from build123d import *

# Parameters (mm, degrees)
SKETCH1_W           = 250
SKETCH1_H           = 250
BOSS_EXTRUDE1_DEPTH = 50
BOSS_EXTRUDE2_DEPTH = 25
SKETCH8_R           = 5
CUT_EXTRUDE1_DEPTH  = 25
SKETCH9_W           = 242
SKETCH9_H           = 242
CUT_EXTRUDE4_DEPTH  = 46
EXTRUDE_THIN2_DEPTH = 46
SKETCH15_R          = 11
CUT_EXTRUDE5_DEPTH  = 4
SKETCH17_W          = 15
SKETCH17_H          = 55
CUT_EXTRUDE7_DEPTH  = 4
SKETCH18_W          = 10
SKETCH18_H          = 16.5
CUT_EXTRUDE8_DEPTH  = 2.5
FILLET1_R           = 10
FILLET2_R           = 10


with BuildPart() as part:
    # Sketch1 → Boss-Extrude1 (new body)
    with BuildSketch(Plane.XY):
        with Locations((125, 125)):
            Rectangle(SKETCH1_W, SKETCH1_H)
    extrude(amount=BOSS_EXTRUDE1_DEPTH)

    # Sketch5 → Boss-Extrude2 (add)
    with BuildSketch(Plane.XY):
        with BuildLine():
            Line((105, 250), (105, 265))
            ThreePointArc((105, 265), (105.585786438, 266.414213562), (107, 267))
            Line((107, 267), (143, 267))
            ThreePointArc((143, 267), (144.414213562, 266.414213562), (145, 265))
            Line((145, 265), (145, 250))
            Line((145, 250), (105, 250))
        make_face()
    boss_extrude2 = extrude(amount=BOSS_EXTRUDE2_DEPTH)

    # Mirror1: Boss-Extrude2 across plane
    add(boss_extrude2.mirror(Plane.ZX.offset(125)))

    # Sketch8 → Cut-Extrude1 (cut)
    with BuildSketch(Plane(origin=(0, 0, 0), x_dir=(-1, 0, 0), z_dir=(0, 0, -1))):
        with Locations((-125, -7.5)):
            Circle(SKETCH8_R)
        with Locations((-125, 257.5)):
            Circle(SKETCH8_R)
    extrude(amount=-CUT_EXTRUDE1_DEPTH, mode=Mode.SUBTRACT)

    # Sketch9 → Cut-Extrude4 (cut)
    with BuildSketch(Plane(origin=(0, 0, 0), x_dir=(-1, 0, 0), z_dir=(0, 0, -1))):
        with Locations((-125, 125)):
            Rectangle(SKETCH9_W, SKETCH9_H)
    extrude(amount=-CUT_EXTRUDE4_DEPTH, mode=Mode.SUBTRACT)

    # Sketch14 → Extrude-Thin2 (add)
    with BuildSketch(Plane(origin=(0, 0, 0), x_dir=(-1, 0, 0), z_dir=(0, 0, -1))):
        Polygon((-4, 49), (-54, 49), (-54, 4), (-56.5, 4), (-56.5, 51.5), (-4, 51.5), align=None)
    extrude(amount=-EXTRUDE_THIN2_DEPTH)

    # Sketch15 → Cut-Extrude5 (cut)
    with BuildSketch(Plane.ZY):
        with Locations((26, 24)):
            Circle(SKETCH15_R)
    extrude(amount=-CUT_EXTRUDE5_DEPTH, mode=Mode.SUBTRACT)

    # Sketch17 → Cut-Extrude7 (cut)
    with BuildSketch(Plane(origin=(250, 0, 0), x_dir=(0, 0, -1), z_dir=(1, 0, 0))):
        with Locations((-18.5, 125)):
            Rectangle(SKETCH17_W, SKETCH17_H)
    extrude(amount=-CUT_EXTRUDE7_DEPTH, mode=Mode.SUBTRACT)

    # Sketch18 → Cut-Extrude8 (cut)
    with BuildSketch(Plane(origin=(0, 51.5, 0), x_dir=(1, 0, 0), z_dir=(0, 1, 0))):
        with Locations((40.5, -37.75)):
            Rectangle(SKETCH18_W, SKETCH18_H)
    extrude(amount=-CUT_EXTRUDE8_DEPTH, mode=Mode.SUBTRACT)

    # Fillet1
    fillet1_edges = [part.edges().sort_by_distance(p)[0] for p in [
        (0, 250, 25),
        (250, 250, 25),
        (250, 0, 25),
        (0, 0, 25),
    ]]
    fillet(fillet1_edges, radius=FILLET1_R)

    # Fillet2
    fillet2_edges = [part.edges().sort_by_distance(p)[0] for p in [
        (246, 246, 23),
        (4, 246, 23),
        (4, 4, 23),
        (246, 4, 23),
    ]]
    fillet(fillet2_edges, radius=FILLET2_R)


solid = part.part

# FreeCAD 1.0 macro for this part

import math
import FreeCAD as App
import Part
import Sketcher
from FreeCAD import Vector


def edges_at(feature, points):
    """Names of the edges that pass closest to the given points."""
    edges = feature.Shape.Edges
    near = lambda p: min(range(len(edges)), key=lambda i: edges[i].distToShape(Part.Vertex(*p))[0])
    return sorted({f"Edge{near(p) + 1}" for p in points})

doc = App.newDocument("Part")
body = doc.addObject("PartDesign::Body", "Body")

sketch1 = body.newObject("Sketcher::SketchObject", "Sketch")
sketch1.AttachmentSupport = (doc.getObject("XY_Plane"), [""])
sketch1.MapMode = "FlatFace"
sketch1.addGeometry(Part.LineSegment(Vector(0, 250, 0), Vector(0, 0, 0)), False)
sketch1.addGeometry(Part.LineSegment(Vector(0, 0, 0), Vector(250, 0, 0)), False)
sketch1.addGeometry(Part.LineSegment(Vector(250, 0, 0), Vector(250, 250, 0)), False)
sketch1.addGeometry(Part.LineSegment(Vector(250, 250, 0), Vector(0, 250, 0)), False)
sketch1.addConstraint(Sketcher.Constraint("Coincident", 0, 2, 1, 1))
sketch1.addConstraint(Sketcher.Constraint("Coincident", 1, 2, 2, 1))
sketch1.addConstraint(Sketcher.Constraint("Coincident", 2, 2, 3, 1))
sketch1.addConstraint(Sketcher.Constraint("Coincident", 3, 2, 0, 1))
sketch1.addConstraint(Sketcher.Constraint("Vertical", 0))
sketch1.addConstraint(Sketcher.Constraint("Horizontal", 1))
sketch1.addConstraint(Sketcher.Constraint("Vertical", 2))
sketch1.addConstraint(Sketcher.Constraint("Horizontal", 3))
sketch1.addConstraint(Sketcher.Constraint("Coincident", 0, 2, -1, 1))
sketch1.addConstraint(Sketcher.Constraint("Equal", 3, 0))
sketch1.addConstraint(Sketcher.Constraint("DistanceX", 1, 1, 1, 2, 250.0))
pad1 = body.newObject("PartDesign::Pad", "Pad")
pad1.Profile = sketch1
pad1.Length = 50

sketch2 = body.newObject("Sketcher::SketchObject", "Sketch001")
sketch2.AttachmentSupport = (doc.getObject("XY_Plane"), [""])
sketch2.MapMode = "FlatFace"
sketch2.addGeometry(Part.LineSegment(Vector(105, 265, 0), Vector(105, 250, 0)), False)
sketch2.addGeometry(Part.LineSegment(Vector(105, 250, 0), Vector(145, 250, 0)), False)
sketch2.addGeometry(Part.LineSegment(Vector(145, 250, 0), Vector(145, 265, 0)), False)
sketch2.addGeometry(Part.ArcOfCircle(Part.Circle(Vector(143, 265, 0), Vector(0, 0, 1), 2), math.radians(0), math.radians(90)), False)
sketch2.addGeometry(Part.LineSegment(Vector(143, 267, 0), Vector(107, 267, 0)), False)
sketch2.addGeometry(Part.ArcOfCircle(Part.Circle(Vector(107, 265, 0), Vector(0, 0, 1), 2), math.radians(90), math.radians(180)), False)
sketch2.addConstraint(Sketcher.Constraint("Coincident", 0, 2, 1, 1))
sketch2.addConstraint(Sketcher.Constraint("Coincident", 1, 2, 2, 1))
sketch2.addConstraint(Sketcher.Constraint("Tangent", 2, 2, 3, 1))
sketch2.addConstraint(Sketcher.Constraint("Tangent", 3, 2, 4, 1))
sketch2.addConstraint(Sketcher.Constraint("Tangent", 4, 2, 5, 1))
sketch2.addConstraint(Sketcher.Constraint("Tangent", 5, 2, 0, 1))
sketch2.addConstraint(Sketcher.Constraint("Vertical", 0))
sketch2.addConstraint(Sketcher.Constraint("Horizontal", 1))
sketch2.addConstraint(Sketcher.Constraint("Vertical", 2))
sketch2.addConstraint(Sketcher.Constraint("Horizontal", 4))
sketch2.addConstraint(Sketcher.Constraint("Equal", 3, 5))
sketch2.addConstraint(Sketcher.Constraint("Radius", 3, 2.0))
sketch2.addConstraint(Sketcher.Constraint("DistanceX", 1, 1, 1, 2, 40.0))
sketch2.addConstraint(Sketcher.Constraint("DistanceY", 0, 2, 0, 1, 15.0))
sketch2.addConstraint(Sketcher.Constraint("DistanceX", -1, 1, 3, 3, 143.0))
sketch2.addConstraint(Sketcher.Constraint("DistanceY", -1, 1, 3, 3, 265.0))
pad2 = body.newObject("PartDesign::Pad", "Pad001")
pad2.Profile = sketch2
pad2.Length = 25
doc.recompute()

datumplane = body.newObject("PartDesign::Plane", "DatumPlane")
datumplane.AttachmentSupport = (doc.getObject("XZ_Plane"), [""])
datumplane.MapMode = "FlatFace"
datumplane.AttachmentOffset = App.Placement(Vector(0, 0, -125), App.Rotation())
mirrored = body.newObject("PartDesign::Mirrored", "Mirrored")
mirrored.Originals = [pad2]
mirrored.MirrorPlane = (datumplane, [""])
body.Tip = mirrored

sketch3 = body.newObject("Sketcher::SketchObject", "Sketch002")
sketch3.AttachmentSupport = (doc.getObject("XY_Plane"), [""])
sketch3.MapMode = "FlatFace"
sketch3.addGeometry(Part.Circle(Vector(125, -8, 0), Vector(0, 0, 1), 5), False)
sketch3.addGeometry(Part.Circle(Vector(125, 258, 0), Vector(0, 0, 1), 5), False)
sketch3.addConstraint(Sketcher.Constraint("Equal", 0, 1))
sketch3.addConstraint(Sketcher.Constraint("Vertical", 0, 3, 1, 3))
sketch3.addConstraint(Sketcher.Constraint("Diameter", 0, 10.0))
sketch3.addConstraint(Sketcher.Constraint("DistanceX", -1, 1, 0, 3, 125.0))
sketch3.addConstraint(Sketcher.Constraint("DistanceY", 0, 3, 1, 3, 265.0))
sketch3.addConstraint(Sketcher.Constraint("DistanceY", 0, 3, -1, 1, 7.5))
pocket1 = body.newObject("PartDesign::Pocket", "Pocket")
pocket1.Profile = sketch3
pocket1.Length = 25
pocket1.Reversed = True

sketch4 = body.newObject("Sketcher::SketchObject", "Sketch003")
sketch4.AttachmentSupport = (doc.getObject("XY_Plane"), [""])
sketch4.MapMode = "FlatFace"
sketch4.addGeometry(Part.LineSegment(Vector(246, 246, 0), Vector(246, 4, 0)), False)
sketch4.addGeometry(Part.LineSegment(Vector(246, 4, 0), Vector(4, 4, 0)), False)
sketch4.addGeometry(Part.LineSegment(Vector(4, 4, 0), Vector(4, 246, 0)), False)
sketch4.addGeometry(Part.LineSegment(Vector(4, 246, 0), Vector(246, 246, 0)), False)
sketch4.addConstraint(Sketcher.Constraint("Coincident", 0, 2, 1, 1))
sketch4.addConstraint(Sketcher.Constraint("Coincident", 1, 2, 2, 1))
sketch4.addConstraint(Sketcher.Constraint("Coincident", 2, 2, 3, 1))
sketch4.addConstraint(Sketcher.Constraint("Coincident", 3, 2, 0, 1))
sketch4.addConstraint(Sketcher.Constraint("Vertical", 0))
sketch4.addConstraint(Sketcher.Constraint("Horizontal", 1))
sketch4.addConstraint(Sketcher.Constraint("Vertical", 2))
sketch4.addConstraint(Sketcher.Constraint("Horizontal", 3))
sketch4.addConstraint(Sketcher.Constraint("Equal", 3, 0))
sketch4.addConstraint(Sketcher.Constraint("DistanceX", 1, 2, 1, 1, 242.0))
sketch4.addConstraint(Sketcher.Constraint("DistanceX", -1, 1, 0, 2, 246.0))
sketch4.addConstraint(Sketcher.Constraint("DistanceY", -1, 1, 0, 2, 4.0))
pocket2 = body.newObject("PartDesign::Pocket", "Pocket001")
pocket2.Profile = sketch4
pocket2.Length = 46
pocket2.Reversed = True

sketch5 = body.newObject("Sketcher::SketchObject", "Sketch004")
sketch5.AttachmentSupport = (doc.getObject("XY_Plane"), [""])
sketch5.MapMode = "FlatFace"
sketch5.addGeometry(Part.LineSegment(Vector(54, 49, 0), Vector(4, 49, 0)), False)
sketch5.addGeometry(Part.LineSegment(Vector(4, 49, 0), Vector(4, 51.5, 0)), False)
sketch5.addGeometry(Part.LineSegment(Vector(4, 51.5, 0), Vector(56.5, 51.5, 0)), False)
sketch5.addGeometry(Part.LineSegment(Vector(56.5, 51.5, 0), Vector(56.5, 4, 0)), False)
sketch5.addGeometry(Part.LineSegment(Vector(56.5, 4, 0), Vector(54, 4, 0)), False)
sketch5.addGeometry(Part.LineSegment(Vector(54, 4, 0), Vector(54, 49, 0)), False)
sketch5.addConstraint(Sketcher.Constraint("Coincident", 0, 2, 1, 1))
sketch5.addConstraint(Sketcher.Constraint("Coincident", 1, 2, 2, 1))
sketch5.addConstraint(Sketcher.Constraint("Coincident", 2, 2, 3, 1))
sketch5.addConstraint(Sketcher.Constraint("Coincident", 3, 2, 4, 1))
sketch5.addConstraint(Sketcher.Constraint("Coincident", 4, 2, 5, 1))
sketch5.addConstraint(Sketcher.Constraint("Coincident", 5, 2, 0, 1))
sketch5.addConstraint(Sketcher.Constraint("Horizontal", 0))
sketch5.addConstraint(Sketcher.Constraint("Vertical", 1))
sketch5.addConstraint(Sketcher.Constraint("Horizontal", 2))
sketch5.addConstraint(Sketcher.Constraint("Vertical", 3))
sketch5.addConstraint(Sketcher.Constraint("Horizontal", 4))
sketch5.addConstraint(Sketcher.Constraint("Vertical", 5))
sketch5.addConstraint(Sketcher.Constraint("Equal", 4, 1))
sketch5.addConstraint(Sketcher.Constraint("DistanceX", 0, 2, 0, 1, 50.0))
sketch5.addConstraint(Sketcher.Constraint("DistanceY", 5, 1, 5, 2, 45.0))
sketch5.addConstraint(Sketcher.Constraint("DistanceX", 2, 1, 2, 2, 52.5))
sketch5.addConstraint(Sketcher.Constraint("DistanceX", -1, 1, 0, 2, 4.0))
sketch5.addConstraint(Sketcher.Constraint("DistanceY", -1, 1, 0, 2, 49.0))
pad3 = body.newObject("PartDesign::Pad", "Pad002")
pad3.Profile = sketch5
pad3.Length = 46

sketch6 = body.newObject("Sketcher::SketchObject", "Sketch005")
sketch6.AttachmentSupport = (doc.getObject("YZ_Plane"), [""])
sketch6.MapMode = "FlatFace"
sketch6.addGeometry(Part.Circle(Vector(24, 26, 0), Vector(0, 0, 1), 11), False)
sketch6.addConstraint(Sketcher.Constraint("Diameter", 0, 22.0))
sketch6.addConstraint(Sketcher.Constraint("DistanceX", -1, 1, 0, 3, 24.0))
sketch6.addConstraint(Sketcher.Constraint("DistanceY", -1, 1, 0, 3, 26.0))
pocket3 = body.newObject("PartDesign::Pocket", "Pocket002")
pocket3.Profile = sketch6
pocket3.Length = 4
pocket3.Reversed = True

sketch7 = body.newObject("Sketcher::SketchObject", "Sketch006")
sketch7.AttachmentSupport = (doc.getObject("YZ_Plane"), [""])
sketch7.MapMode = "FlatFace"
sketch7.AttachmentOffset = App.Placement(Vector(0, 0, 250), App.Rotation())
sketch7.addGeometry(Part.LineSegment(Vector(152, 26, 0), Vector(98, 26, 0)), False)
sketch7.addGeometry(Part.LineSegment(Vector(98, 26, 0), Vector(98, 11, 0)), False)
sketch7.addGeometry(Part.LineSegment(Vector(98, 11, 0), Vector(152, 11, 0)), False)
sketch7.addGeometry(Part.LineSegment(Vector(152, 11, 0), Vector(152, 26, 0)), False)
sketch7.addConstraint(Sketcher.Constraint("Coincident", 0, 2, 1, 1))
sketch7.addConstraint(Sketcher.Constraint("Coincident", 1, 2, 2, 1))
sketch7.addConstraint(Sketcher.Constraint("Coincident", 2, 2, 3, 1))
sketch7.addConstraint(Sketcher.Constraint("Coincident", 3, 2, 0, 1))
sketch7.addConstraint(Sketcher.Constraint("Horizontal", 0))
sketch7.addConstraint(Sketcher.Constraint("Vertical", 1))
sketch7.addConstraint(Sketcher.Constraint("Horizontal", 2))
sketch7.addConstraint(Sketcher.Constraint("Vertical", 3))
sketch7.addConstraint(Sketcher.Constraint("DistanceX", 0, 2, 0, 1, 55.0))
sketch7.addConstraint(Sketcher.Constraint("DistanceY", 1, 2, 1, 1, 15.0))
sketch7.addConstraint(Sketcher.Constraint("DistanceY", -1, 1, 0, 2, 26.0))
sketch7.addConstraint(Sketcher.Constraint("DistanceX", -1, 1, 0, 2, 97.5))
pocket4 = body.newObject("PartDesign::Pocket", "Pocket003")
pocket4.Profile = sketch7
pocket4.Length = 4

sketch8 = body.newObject("Sketcher::SketchObject", "Sketch007")
sketch8.AttachmentSupport = (doc.getObject("XZ_Plane"), [""])
sketch8.MapMode = "FlatFace"
sketch8.AttachmentOffset = App.Placement(Vector(0, 0, -51.5), App.Rotation())
sketch8.addGeometry(Part.LineSegment(Vector(36, 30, 0), Vector(36, 46, 0)), False)
sketch8.addGeometry(Part.LineSegment(Vector(36, 46, 0), Vector(46, 46, 0)), False)
sketch8.addGeometry(Part.LineSegment(Vector(46, 46, 0), Vector(46, 30, 0)), False)
sketch8.addGeometry(Part.LineSegment(Vector(46, 30, 0), Vector(36, 30, 0)), False)
sketch8.addConstraint(Sketcher.Constraint("Coincident", 0, 2, 1, 1))
sketch8.addConstraint(Sketcher.Constraint("Coincident", 1, 2, 2, 1))
sketch8.addConstraint(Sketcher.Constraint("Coincident", 2, 2, 3, 1))
sketch8.addConstraint(Sketcher.Constraint("Coincident", 3, 2, 0, 1))
sketch8.addConstraint(Sketcher.Constraint("Vertical", 0))
sketch8.addConstraint(Sketcher.Constraint("Horizontal", 1))
sketch8.addConstraint(Sketcher.Constraint("Vertical", 2))
sketch8.addConstraint(Sketcher.Constraint("Horizontal", 3))
sketch8.addConstraint(Sketcher.Constraint("DistanceX", 1, 1, 1, 2, 10.0))
sketch8.addConstraint(Sketcher.Constraint("DistanceY", 0, 1, 0, 2, 16.5))
sketch8.addConstraint(Sketcher.Constraint("DistanceY", -1, 1, 0, 2, 46.0))
sketch8.addConstraint(Sketcher.Constraint("DistanceX", -1, 1, 0, 2, 35.5))
pocket5 = body.newObject("PartDesign::Pocket", "Pocket004")
pocket5.Profile = sketch8
pocket5.Length = 2.5
pocket5.Reversed = True
doc.recompute()

fillet = body.newObject("PartDesign::Fillet", "Fillet")
fillet.Base = (pocket5, edges_at(pocket5, [
    (0, 250, 25),
    (250, 250, 25),
    (250, 0, 25),
    (0, 0, 25),
]))
fillet.Radius = 10
doc.recompute()

fillet2 = body.newObject("PartDesign::Fillet", "Fillet001")
fillet2.Base = (fillet, edges_at(fillet, [
    (246, 246, 23),
    (4, 246, 23),
    (4, 4, 23),
    (246, 4, 23),
]))
fillet2.Radius = 10

doc.recompute()
